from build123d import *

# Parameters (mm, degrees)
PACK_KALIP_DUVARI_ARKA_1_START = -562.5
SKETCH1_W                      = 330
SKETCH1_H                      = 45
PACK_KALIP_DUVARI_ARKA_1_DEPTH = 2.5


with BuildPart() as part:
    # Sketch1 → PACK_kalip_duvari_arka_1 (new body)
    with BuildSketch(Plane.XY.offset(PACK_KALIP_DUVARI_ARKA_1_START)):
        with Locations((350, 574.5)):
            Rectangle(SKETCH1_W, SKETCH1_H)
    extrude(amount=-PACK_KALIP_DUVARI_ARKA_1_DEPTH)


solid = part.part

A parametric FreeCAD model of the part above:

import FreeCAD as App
import Part
import Sketcher
from FreeCAD import Vector
Q = App.Units.Quantity

doc = App.newDocument("Part")
body = doc.addObject("PartDesign::Body", "Body")

sketch1 = body.newObject("Sketcher::SketchObject", "Sketch")
sketch1.AttachmentSupport = (doc.getObject("XY_Plane"), [""])
sketch1.MapMode = "FlatFace"
sketch1.AttachmentOffset = App.Placement(Vector(0, 0, -562.5), App.Rotation())
sketch1.addGeometry(Part.LineSegment(Vector(185, 597, 0), Vector(185, 552, 0)), False)
sketch1.addGeometry(Part.LineSegment(Vector(185, 552, 0), Vector(515, 552, 0)), False)
sketch1.addGeometry(Part.LineSegment(Vector(515, 552, 0), Vector(515, 597, 0)), False)
sketch1.addGeometry(Part.LineSegment(Vector(515, 597, 0), Vector(185, 597, 0)), False)
sketch1.addConstraint(Sketcher.Constraint("Coincident", 0, 2, 1, 1))
sketch1.addConstraint(Sketcher.Constraint("Coincident", 1, 2, 2, 1))
sketch1.addConstraint(Sketcher.Constraint("Coincident", 2, 2, 3, 1))
sketch1.addConstraint(Sketcher.Constraint("Coincident", 3, 2, 0, 1))
sketch1.addConstraint(Sketcher.Constraint("Vertical", 0))
sketch1.addConstraint(Sketcher.Constraint("Horizontal", 1))
sketch1.addConstraint(Sketcher.Constraint("Vertical", 2))
sketch1.addConstraint(Sketcher.Constraint("Horizontal", 3))
sketch1.addConstraint(Sketcher.Constraint("DistanceX", 1, 1, 1, 2, Q("330 mm")))
sketch1.addConstraint(Sketcher.Constraint("DistanceY", 0, 2, 0, 1, Q("45 mm")))
sketch1.addConstraint(Sketcher.Constraint("DistanceX", -1, 1, 0, 2, Q("185 mm")))
sketch1.addConstraint(Sketcher.Constraint("DistanceY", -1, 1, 0, 2, Q("552 mm")))
pad1 = body.newObject("PartDesign::Pad", "Pad")
pad1.Profile = sketch1
pad1.Length = 2.5
pad1.Reversed = True

doc.recompute()
